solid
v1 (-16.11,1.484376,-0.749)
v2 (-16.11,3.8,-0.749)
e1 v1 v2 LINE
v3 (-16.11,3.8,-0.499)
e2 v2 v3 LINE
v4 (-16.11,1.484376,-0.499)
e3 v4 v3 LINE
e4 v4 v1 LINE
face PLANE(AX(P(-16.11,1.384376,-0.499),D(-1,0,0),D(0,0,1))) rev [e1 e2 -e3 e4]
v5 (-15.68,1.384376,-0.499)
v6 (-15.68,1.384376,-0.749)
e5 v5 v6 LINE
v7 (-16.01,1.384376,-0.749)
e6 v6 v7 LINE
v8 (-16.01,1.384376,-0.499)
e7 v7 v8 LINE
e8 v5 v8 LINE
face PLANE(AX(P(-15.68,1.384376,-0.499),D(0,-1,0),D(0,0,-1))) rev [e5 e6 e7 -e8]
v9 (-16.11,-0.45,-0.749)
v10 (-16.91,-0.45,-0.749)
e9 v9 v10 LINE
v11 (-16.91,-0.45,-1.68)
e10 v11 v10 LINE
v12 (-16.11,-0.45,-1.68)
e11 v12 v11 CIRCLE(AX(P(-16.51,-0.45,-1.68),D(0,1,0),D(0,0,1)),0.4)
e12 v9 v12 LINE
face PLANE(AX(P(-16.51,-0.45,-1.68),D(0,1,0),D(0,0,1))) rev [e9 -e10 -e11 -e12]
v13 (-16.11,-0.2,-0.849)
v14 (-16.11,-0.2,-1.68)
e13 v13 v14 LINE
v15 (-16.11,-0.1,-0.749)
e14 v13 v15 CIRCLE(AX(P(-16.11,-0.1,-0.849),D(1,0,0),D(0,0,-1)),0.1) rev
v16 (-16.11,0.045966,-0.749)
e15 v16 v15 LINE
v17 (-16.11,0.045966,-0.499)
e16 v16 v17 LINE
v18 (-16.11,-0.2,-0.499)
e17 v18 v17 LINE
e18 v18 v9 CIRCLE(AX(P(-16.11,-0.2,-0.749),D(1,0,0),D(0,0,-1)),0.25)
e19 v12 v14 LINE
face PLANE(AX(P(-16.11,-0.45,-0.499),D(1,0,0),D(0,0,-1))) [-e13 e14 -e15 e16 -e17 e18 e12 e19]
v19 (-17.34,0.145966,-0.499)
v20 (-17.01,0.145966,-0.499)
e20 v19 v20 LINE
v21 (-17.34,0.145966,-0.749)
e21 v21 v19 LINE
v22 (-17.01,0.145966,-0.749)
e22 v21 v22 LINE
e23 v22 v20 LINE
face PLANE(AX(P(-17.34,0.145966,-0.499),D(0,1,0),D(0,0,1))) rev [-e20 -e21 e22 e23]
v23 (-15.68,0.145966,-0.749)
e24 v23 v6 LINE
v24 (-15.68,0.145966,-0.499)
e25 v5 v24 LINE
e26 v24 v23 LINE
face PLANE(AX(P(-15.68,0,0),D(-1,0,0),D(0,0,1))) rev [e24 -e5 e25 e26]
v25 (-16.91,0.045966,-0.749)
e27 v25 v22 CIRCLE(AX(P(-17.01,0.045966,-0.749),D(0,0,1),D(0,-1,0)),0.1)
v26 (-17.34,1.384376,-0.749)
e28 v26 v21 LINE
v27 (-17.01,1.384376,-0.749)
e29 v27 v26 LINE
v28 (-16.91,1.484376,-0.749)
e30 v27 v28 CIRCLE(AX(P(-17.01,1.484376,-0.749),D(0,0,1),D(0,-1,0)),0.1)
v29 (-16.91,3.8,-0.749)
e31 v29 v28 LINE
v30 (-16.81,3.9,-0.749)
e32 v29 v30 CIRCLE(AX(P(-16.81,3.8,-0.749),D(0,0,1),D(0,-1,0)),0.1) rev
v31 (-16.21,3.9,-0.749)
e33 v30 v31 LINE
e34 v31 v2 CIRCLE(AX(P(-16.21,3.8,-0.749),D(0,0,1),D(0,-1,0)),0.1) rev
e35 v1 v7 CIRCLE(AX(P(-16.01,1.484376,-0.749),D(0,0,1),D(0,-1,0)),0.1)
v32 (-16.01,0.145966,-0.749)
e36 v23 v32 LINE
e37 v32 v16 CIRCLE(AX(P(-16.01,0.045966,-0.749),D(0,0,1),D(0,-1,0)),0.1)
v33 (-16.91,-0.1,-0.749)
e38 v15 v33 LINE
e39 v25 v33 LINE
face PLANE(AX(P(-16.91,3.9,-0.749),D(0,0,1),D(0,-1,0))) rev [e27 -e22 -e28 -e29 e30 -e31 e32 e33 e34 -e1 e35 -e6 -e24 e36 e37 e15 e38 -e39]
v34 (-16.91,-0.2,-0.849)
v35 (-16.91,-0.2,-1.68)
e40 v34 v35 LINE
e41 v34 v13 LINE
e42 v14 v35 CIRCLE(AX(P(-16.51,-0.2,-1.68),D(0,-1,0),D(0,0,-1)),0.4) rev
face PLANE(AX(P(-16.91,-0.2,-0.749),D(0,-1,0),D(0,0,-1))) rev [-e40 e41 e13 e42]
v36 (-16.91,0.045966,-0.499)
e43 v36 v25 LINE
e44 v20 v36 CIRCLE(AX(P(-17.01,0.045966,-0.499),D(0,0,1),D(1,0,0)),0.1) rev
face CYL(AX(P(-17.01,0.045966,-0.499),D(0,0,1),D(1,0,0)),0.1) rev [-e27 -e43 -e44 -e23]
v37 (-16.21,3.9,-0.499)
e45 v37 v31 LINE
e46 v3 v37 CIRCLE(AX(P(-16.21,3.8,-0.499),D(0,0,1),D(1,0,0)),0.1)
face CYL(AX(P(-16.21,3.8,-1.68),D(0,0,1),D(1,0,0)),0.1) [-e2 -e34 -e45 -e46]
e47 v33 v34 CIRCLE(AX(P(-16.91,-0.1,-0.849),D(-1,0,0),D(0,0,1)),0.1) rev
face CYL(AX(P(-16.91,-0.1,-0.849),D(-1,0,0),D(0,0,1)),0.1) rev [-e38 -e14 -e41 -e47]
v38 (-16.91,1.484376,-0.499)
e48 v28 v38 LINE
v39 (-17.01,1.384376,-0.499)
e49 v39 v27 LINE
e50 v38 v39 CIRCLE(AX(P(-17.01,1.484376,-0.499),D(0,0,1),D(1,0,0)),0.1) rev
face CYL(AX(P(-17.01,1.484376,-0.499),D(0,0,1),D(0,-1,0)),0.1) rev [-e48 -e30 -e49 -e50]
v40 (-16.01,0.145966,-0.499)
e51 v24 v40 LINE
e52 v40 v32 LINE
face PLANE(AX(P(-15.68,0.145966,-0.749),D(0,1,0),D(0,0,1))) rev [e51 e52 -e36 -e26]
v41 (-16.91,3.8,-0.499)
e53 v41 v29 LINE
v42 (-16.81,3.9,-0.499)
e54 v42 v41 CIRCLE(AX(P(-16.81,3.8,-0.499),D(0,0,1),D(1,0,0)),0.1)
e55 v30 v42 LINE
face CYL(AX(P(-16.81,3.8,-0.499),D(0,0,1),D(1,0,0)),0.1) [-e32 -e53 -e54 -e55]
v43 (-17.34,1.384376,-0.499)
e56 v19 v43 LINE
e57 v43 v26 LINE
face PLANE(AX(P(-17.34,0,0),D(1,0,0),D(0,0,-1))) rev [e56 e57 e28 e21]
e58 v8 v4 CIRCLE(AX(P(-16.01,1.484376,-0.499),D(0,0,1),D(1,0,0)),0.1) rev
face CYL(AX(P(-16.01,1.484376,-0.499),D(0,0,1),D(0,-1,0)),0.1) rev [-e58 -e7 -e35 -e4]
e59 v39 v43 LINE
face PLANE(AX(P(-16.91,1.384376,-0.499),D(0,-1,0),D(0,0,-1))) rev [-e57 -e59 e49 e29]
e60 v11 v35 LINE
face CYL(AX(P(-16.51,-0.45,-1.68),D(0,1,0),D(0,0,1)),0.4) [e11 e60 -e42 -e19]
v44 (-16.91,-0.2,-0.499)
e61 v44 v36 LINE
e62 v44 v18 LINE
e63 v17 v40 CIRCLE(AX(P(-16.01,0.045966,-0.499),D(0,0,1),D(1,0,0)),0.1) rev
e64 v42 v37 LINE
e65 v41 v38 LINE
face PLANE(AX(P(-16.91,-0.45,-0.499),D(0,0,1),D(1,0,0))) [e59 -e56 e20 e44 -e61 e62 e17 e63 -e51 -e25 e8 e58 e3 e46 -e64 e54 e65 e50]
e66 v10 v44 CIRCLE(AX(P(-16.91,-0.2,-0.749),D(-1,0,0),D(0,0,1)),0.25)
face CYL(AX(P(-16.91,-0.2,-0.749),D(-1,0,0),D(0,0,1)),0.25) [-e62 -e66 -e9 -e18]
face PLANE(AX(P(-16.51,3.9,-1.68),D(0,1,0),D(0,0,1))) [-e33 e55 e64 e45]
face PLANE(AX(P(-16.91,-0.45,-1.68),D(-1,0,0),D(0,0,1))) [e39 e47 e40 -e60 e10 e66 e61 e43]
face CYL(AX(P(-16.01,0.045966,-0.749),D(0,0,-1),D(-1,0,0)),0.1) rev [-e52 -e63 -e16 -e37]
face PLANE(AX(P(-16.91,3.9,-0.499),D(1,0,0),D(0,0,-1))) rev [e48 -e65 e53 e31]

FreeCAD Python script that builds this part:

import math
import FreeCAD as App
import Part
import Sketcher
from FreeCAD import Vector


def edges_at(feature, points):
    """Names of the edges that pass closest to the given points."""
    edges = feature.Shape.Edges
    near = lambda p: min(range(len(edges)), key=lambda i: edges[i].distToShape(Part.Vertex(*p))[0])
    return sorted({f"Edge{near(p) + 1}" for p in points})


def add_polygon(sketch, points):
    """Adds a closed chain of lines whose ends are joined by coincident constraints."""
    first, n = sketch.GeometryCount, len(points)
    for a, b in zip(points, points[1:] + points[:1]):
        sketch.addGeometry(Part.LineSegment(App.Vector(*a, 0), App.Vector(*b, 0)), False)
    for i in range(n):
        sketch.addConstraint(Sketcher.Constraint("Coincident", first + i, 2, first + (i + 1) % n, 1))

doc = App.newDocument("Part")
body = doc.addObject("PartDesign::Body", "Body")

# Sketch on XZ plane
sketch1 = body.newObject("Sketcher::SketchObject", "Sketch")
sketch1.AttachmentSupport = (doc.getObject("XZ_Plane"), [""])
sketch1.MapMode = "FlatFace"
sketch1.AttachmentOffset = App.Placement(Vector(0, 0, -3.9), App.Rotation())
sketch1.addGeometry(Part.LineSegment(Vector(-16.91, -0.5, 0), Vector(-16.11, -0.5, 0)), False)
sketch1.addGeometry(Part.LineSegment(Vector(-16.11, -0.5, 0), Vector(-16.11, -1.68, 0)), False)
sketch1.addGeometry(Part.ArcOfCircle(Part.Circle(Vector(-16.51, -1.68, 0), Vector(0, 0, 1), 0.4), math.radians(180), math.radians(360)), False)
sketch1.addGeometry(Part.LineSegment(Vector(-16.91, -1.68, 0), Vector(-16.91, -0.5, 0)), False)
sketch1.addConstraint(Sketcher.Constraint("Coincident", 0, 2, 1, 1))
sketch1.addConstraint(Sketcher.Constraint("Tangent", 1, 2, 2, 2))
sketch1.addConstraint(Sketcher.Constraint("Tangent", 2, 1, 3, 1))
sketch1.addConstraint(Sketcher.Constraint("Coincident", 3, 2, 0, 1))
sketch1.addConstraint(Sketcher.Constraint("Horizontal", 0))
sketch1.addConstraint(Sketcher.Constraint("Vertical", 1))
sketch1.addConstraint(Sketcher.Constraint("Vertical", 3))
sketch1.addConstraint(Sketcher.Constraint("Radius", 2, 0.4))
sketch1.addConstraint(Sketcher.Constraint("DistanceY", 1, 2, 1, 1, 1.181))
sketch1.addConstraint(Sketcher.Constraint("DistanceX", 2, 3, -1, 1, 16.51))
sketch1.addConstraint(Sketcher.Constraint("DistanceY", 2, 3, -1, 1, 1.68))
pad1 = body.newObject("PartDesign::Pad", "Pad")
pad1.Profile = sketch1
pad1.Length = 4.35

# Sketch on YZ plane
sketch2 = body.newObject("Sketcher::SketchObject", "Sketch001")
sketch2.AttachmentSupport = (doc.getObject("YZ_Plane"), [""])
sketch2.MapMode = "FlatFace"
sketch2.AttachmentOffset = App.Placement(Vector(0, 0, -16.11), App.Rotation())
add_polygon(sketch2, [(3.9, -0.7), (-0.2, -0.7), (-0.2, -2.6), (3.9, -2.6)])  # lines 0-3
sketch2.addConstraint(Sketcher.Constraint("Horizontal", 0))
sketch2.addConstraint(Sketcher.Constraint("Vertical", 1))
sketch2.addConstraint(Sketcher.Constraint("Horizontal", 2))
sketch2.addConstraint(Sketcher.Constraint("Vertical", 3))
sketch2.addConstraint(Sketcher.Constraint("DistanceX", 0, 2, 0, 1, 4.1))
sketch2.addConstraint(Sketcher.Constraint("DistanceX", 0, 2, -1, 1, 0.2))
sketch2.addConstraint(Sketcher.Constraint("DistanceY", 0, 2, -1, 1, 0.749))
sketch2.addConstraint(Sketcher.Constraint("DistanceY", 1, 2, 1, 1, 1.82507))
pocket1 = body.newObject("PartDesign::Pocket", "Pocket")
pocket1.Profile = sketch2
pocket1.Type = "ThroughAll"

# Sketch on YZ plane
sketch3 = body.newObject("Sketcher::SketchObject", "Sketch002")
sketch3.AttachmentSupport = (doc.getObject("YZ_Plane"), [""])
sketch3.MapMode = "FlatFace"
sketch3.AttachmentOffset = App.Placement(Vector(0, 0, -16.11), App.Rotation())
add_polygon(sketch3, [(3.9, -0.5), (0.15, -0.5), (0.15, -0.75), (3.9, -0.75)])  # lines 0-3
sketch3.addConstraint(Sketcher.Constraint("Horizontal", 0))
sketch3.addConstraint(Sketcher.Constraint("Vertical", 1))
sketch3.addConstraint(Sketcher.Constraint("Horizontal", 2))
sketch3.addConstraint(Sketcher.Constraint("Vertical", 3))
sketch3.addConstraint(Sketcher.Constraint("DistanceY", 1, 2, 1, 1, 0.25))
sketch3.addConstraint(Sketcher.Constraint("DistanceX", -1, 1, 2, 2, 3.9))
sketch3.addConstraint(Sketcher.Constraint("DistanceY", 0, 2, -1, 1, 0.499))
sketch3.addConstraint(Sketcher.Constraint("DistanceX", 0, 2, 0, 1, 3.754034))
pad2 = body.newObject("PartDesign::Pad", "Pad001")
pad2.Profile = sketch3
pad2.Length = 0.43

# Sketch on YZ plane
sketch4 = body.newObject("Sketcher::SketchObject", "Sketch003")
sketch4.AttachmentSupport = (doc.getObject("YZ_Plane"), [""])
sketch4.MapMode = "FlatFace"
sketch4.AttachmentOffset = App.Placement(Vector(0, 0, -16.91), App.Rotation())
add_polygon(sketch4, [(3.9, -0.75), (0.15, -0.75), (0.15, -0.5), (3.9, -0.5)])  # lines 0-3
sketch4.addConstraint(Sketcher.Constraint("Horizontal", 0))
sketch4.addConstraint(Sketcher.Constraint("Vertical", 1))
sketch4.addConstraint(Sketcher.Constraint("Horizontal", 2))
sketch4.addConstraint(Sketcher.Constraint("Vertical", 3))
sketch4.addConstraint(Sketcher.Constraint("DistanceY", 1, 1, 1, 2, 0.25))
sketch4.addConstraint(Sketcher.Constraint("DistanceX", -1, 1, 2, 2, 3.9))
sketch4.addConstraint(Sketcher.Constraint("DistanceY", 0, 2, -1, 1, 0.749))
sketch4.addConstraint(Sketcher.Constraint("DistanceX", 0, 2, 0, 1, 3.754034))
pad3 = body.newObject("PartDesign::Pad", "Pad002")
pad3.Profile = sketch4
pad3.Length = 0.43
pad3.Reversed = True

# Sketch on XY plane
sketch5 = body.newObject("Sketcher::SketchObject", "Sketch004")
sketch5.AttachmentSupport = (doc.getObject("XY_Plane"), [""])
sketch5.MapMode = "FlatFace"
sketch5.AttachmentOffset = App.Placement(Vector(0, 0, -0.749), App.Rotation())
add_polygon(sketch5, [(-15.68, 3.9), (-15.68, 1.38), (-16.11, 1.38), (-16.11, 3.9)])  # lines 0-3
sketch5.addConstraint(Sketcher.Constraint("Vertical", 0))
sketch5.addConstraint(Sketcher.Constraint("Horizontal", 1))
sketch5.addConstraint(Sketcher.Constraint("Vertical", 2))
sketch5.addConstraint(Sketcher.Constraint("Horizontal", 3))
sketch5.addConstraint(Sketcher.Constraint("DistanceX", 1, 2, 1, 1, 0.43))
sketch5.addConstraint(Sketcher.Constraint("DistanceY", -1, 1, 2, 2, 3.9))
sketch5.addConstraint(Sketcher.Constraint("DistanceX", 0, 2, -1, 1, 15.68))
sketch5.addConstraint(Sketcher.Constraint("DistanceY", 0, 2, 0, 1, 2.515624))
pocket2 = body.newObject("PartDesign::Pocket", "Pocket001")
pocket2.Profile = sketch5
pocket2.Type = "ThroughAll"
pocket2.Reversed = True

# Sketch on XY plane
sketch6 = body.newObject("Sketcher::SketchObject", "Sketch005")
sketch6.AttachmentSupport = (doc.getObject("XY_Plane"), [""])
sketch6.MapMode = "FlatFace"
sketch6.AttachmentOffset = App.Placement(Vector(0, 0, -0.749), App.Rotation())
add_polygon(sketch6, [(-16.91, 3.9), (-16.91, 1.38), (-17.34, 1.38), (-17.34, 3.9)])  # lines 0-3
sketch6.addConstraint(Sketcher.Constraint("Vertical", 0))
sketch6.addConstraint(Sketcher.Constraint("Horizontal", 1))
sketch6.addConstraint(Sketcher.Constraint("Vertical", 2))
sketch6.addConstraint(Sketcher.Constraint("Horizontal", 3))
sketch6.addConstraint(Sketcher.Constraint("DistanceX", 1, 2, 1, 1, 0.43))
sketch6.addConstraint(Sketcher.Constraint("DistanceY", -1, 1, 2, 2, 3.9))
sketch6.addConstraint(Sketcher.Constraint("DistanceX", 0, 2, -1, 1, 16.91))
sketch6.addConstraint(Sketcher.Constraint("DistanceY", 0, 2, 0, 1, 2.515624))
pocket3 = body.newObject("PartDesign::Pocket", "Pocket002")
pocket3.Profile = sketch6
pocket3.Type = "ThroughAll"
pocket3.Reversed = True
doc.recompute()

fillet = body.newObject("PartDesign::Fillet", "Fillet")
fillet.Base = (pocket3, edges_at(pocket3, [
    (-16.51, -0.2, -0.749),
    (-16.11, 0.146, -0.624),
    (-16.91, 0.146, -0.624),
    (-16.11, 3.9, -0.624),
    (-16.11, 1.384, -0.624),
    (-16.91, 1.384, -0.624),
    (-16.91, 3.9, -0.624),
]))
fillet.Radius = 0.1
doc.recompute()

fillet2 = body.newObject("PartDesign::Fillet", "Fillet001")
fillet2.Base = (fillet, edges_at(fillet, [(-16.51, -0.45, -0.499)]))
fillet2.Radius = 0.25

doc.recompute()
